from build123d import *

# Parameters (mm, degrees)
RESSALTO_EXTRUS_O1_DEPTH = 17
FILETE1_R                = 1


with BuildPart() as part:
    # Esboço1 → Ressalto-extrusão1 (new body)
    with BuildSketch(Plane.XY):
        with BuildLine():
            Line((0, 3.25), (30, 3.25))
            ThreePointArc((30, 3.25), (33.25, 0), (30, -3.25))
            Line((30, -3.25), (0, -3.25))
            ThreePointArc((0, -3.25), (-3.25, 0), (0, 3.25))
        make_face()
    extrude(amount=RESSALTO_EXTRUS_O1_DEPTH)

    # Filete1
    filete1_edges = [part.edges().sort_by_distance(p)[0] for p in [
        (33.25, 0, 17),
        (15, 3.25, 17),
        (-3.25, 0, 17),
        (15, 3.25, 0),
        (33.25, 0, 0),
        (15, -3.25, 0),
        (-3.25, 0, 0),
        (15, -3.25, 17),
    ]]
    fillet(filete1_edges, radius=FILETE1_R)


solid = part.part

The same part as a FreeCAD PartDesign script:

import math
import FreeCAD as App
import Part
import Sketcher
Q = App.Units.Quantity


def edges_at(feature, points):
    """Names of the edges that pass closest to the given points."""
    edges = feature.Shape.Edges
    near = lambda p: min(range(len(edges)), key=lambda i: edges[i].distToShape(Part.Vertex(*p))[0])
    return sorted({f"Edge{near(p) + 1}" for p in points})

doc = App.newDocument("Part")
body = doc.addObject("PartDesign::Body", "Body")

sketch1 = doc.addObject("Sketcher::SketchObject", "Sketch")
body.addObject(sketch1)
sketch1.AttachmentSupport = (doc.XY_Plane, [""])
sketch1.MapMode = "FlatFace"
sketch1.addGeometry([
    Part.LineSegment(App.Vector(30, 3.25, 0), App.Vector(0, 3.25, 0)),
    Part.ArcOfCircle(Part.Circle(App.Vector(0, 0, 0), App.Vector(0, 0, 1), 3.25), math.radians(90), math.radians(270)),
    Part.LineSegment(App.Vector(0, -3.25, 0), App.Vector(30, -3.25, 0)),
    Part.ArcOfCircle(Part.Circle(App.Vector(30, 0, 0), App.Vector(0, 0, 1), 3.25), math.radians(-90), math.radians(90)),
], False)
sketch1.addConstraint([
    Sketcher.Constraint("Tangent", 0, 2, 1, 1),
    Sketcher.Constraint("Tangent", 1, 2, 2, 1),
    Sketcher.Constraint("Tangent", 2, 2, 3, 1),
    Sketcher.Constraint("Tangent", 3, 2, 0, 1),
    Sketcher.Constraint("Horizontal", 0),
    Sketcher.Constraint("Horizontal", 2),
    Sketcher.Constraint("Coincident", 1, 3, -1, 1),
    Sketcher.Constraint("DistanceX", 0, 2, 0, 1, Q("30 mm")),
    Sketcher.Constraint("Radius", 1, Q("3.25 mm")),
])
pad1 = doc.addObject("PartDesign::Pad", "Pad")
body.addObject(pad1)
pad1.Profile = sketch1
pad1.Length = 17
doc.recompute()

fillet = doc.addObject("PartDesign::Fillet", "Fillet")
body.addObject(fillet)
fillet.Base = (pad1, edges_at(pad1, [
    (33.25, 0, 17),
    (15, 3.25, 17),
    (-3.25, 0, 17),
    (15, 3.25, 0),
    (33.25, 0, 0),
    (15, -3.25, 0),
    (-3.25, 0, 0),
    (15, -3.25, 17),
]))
fillet.Radius = 1

doc.recompute()
